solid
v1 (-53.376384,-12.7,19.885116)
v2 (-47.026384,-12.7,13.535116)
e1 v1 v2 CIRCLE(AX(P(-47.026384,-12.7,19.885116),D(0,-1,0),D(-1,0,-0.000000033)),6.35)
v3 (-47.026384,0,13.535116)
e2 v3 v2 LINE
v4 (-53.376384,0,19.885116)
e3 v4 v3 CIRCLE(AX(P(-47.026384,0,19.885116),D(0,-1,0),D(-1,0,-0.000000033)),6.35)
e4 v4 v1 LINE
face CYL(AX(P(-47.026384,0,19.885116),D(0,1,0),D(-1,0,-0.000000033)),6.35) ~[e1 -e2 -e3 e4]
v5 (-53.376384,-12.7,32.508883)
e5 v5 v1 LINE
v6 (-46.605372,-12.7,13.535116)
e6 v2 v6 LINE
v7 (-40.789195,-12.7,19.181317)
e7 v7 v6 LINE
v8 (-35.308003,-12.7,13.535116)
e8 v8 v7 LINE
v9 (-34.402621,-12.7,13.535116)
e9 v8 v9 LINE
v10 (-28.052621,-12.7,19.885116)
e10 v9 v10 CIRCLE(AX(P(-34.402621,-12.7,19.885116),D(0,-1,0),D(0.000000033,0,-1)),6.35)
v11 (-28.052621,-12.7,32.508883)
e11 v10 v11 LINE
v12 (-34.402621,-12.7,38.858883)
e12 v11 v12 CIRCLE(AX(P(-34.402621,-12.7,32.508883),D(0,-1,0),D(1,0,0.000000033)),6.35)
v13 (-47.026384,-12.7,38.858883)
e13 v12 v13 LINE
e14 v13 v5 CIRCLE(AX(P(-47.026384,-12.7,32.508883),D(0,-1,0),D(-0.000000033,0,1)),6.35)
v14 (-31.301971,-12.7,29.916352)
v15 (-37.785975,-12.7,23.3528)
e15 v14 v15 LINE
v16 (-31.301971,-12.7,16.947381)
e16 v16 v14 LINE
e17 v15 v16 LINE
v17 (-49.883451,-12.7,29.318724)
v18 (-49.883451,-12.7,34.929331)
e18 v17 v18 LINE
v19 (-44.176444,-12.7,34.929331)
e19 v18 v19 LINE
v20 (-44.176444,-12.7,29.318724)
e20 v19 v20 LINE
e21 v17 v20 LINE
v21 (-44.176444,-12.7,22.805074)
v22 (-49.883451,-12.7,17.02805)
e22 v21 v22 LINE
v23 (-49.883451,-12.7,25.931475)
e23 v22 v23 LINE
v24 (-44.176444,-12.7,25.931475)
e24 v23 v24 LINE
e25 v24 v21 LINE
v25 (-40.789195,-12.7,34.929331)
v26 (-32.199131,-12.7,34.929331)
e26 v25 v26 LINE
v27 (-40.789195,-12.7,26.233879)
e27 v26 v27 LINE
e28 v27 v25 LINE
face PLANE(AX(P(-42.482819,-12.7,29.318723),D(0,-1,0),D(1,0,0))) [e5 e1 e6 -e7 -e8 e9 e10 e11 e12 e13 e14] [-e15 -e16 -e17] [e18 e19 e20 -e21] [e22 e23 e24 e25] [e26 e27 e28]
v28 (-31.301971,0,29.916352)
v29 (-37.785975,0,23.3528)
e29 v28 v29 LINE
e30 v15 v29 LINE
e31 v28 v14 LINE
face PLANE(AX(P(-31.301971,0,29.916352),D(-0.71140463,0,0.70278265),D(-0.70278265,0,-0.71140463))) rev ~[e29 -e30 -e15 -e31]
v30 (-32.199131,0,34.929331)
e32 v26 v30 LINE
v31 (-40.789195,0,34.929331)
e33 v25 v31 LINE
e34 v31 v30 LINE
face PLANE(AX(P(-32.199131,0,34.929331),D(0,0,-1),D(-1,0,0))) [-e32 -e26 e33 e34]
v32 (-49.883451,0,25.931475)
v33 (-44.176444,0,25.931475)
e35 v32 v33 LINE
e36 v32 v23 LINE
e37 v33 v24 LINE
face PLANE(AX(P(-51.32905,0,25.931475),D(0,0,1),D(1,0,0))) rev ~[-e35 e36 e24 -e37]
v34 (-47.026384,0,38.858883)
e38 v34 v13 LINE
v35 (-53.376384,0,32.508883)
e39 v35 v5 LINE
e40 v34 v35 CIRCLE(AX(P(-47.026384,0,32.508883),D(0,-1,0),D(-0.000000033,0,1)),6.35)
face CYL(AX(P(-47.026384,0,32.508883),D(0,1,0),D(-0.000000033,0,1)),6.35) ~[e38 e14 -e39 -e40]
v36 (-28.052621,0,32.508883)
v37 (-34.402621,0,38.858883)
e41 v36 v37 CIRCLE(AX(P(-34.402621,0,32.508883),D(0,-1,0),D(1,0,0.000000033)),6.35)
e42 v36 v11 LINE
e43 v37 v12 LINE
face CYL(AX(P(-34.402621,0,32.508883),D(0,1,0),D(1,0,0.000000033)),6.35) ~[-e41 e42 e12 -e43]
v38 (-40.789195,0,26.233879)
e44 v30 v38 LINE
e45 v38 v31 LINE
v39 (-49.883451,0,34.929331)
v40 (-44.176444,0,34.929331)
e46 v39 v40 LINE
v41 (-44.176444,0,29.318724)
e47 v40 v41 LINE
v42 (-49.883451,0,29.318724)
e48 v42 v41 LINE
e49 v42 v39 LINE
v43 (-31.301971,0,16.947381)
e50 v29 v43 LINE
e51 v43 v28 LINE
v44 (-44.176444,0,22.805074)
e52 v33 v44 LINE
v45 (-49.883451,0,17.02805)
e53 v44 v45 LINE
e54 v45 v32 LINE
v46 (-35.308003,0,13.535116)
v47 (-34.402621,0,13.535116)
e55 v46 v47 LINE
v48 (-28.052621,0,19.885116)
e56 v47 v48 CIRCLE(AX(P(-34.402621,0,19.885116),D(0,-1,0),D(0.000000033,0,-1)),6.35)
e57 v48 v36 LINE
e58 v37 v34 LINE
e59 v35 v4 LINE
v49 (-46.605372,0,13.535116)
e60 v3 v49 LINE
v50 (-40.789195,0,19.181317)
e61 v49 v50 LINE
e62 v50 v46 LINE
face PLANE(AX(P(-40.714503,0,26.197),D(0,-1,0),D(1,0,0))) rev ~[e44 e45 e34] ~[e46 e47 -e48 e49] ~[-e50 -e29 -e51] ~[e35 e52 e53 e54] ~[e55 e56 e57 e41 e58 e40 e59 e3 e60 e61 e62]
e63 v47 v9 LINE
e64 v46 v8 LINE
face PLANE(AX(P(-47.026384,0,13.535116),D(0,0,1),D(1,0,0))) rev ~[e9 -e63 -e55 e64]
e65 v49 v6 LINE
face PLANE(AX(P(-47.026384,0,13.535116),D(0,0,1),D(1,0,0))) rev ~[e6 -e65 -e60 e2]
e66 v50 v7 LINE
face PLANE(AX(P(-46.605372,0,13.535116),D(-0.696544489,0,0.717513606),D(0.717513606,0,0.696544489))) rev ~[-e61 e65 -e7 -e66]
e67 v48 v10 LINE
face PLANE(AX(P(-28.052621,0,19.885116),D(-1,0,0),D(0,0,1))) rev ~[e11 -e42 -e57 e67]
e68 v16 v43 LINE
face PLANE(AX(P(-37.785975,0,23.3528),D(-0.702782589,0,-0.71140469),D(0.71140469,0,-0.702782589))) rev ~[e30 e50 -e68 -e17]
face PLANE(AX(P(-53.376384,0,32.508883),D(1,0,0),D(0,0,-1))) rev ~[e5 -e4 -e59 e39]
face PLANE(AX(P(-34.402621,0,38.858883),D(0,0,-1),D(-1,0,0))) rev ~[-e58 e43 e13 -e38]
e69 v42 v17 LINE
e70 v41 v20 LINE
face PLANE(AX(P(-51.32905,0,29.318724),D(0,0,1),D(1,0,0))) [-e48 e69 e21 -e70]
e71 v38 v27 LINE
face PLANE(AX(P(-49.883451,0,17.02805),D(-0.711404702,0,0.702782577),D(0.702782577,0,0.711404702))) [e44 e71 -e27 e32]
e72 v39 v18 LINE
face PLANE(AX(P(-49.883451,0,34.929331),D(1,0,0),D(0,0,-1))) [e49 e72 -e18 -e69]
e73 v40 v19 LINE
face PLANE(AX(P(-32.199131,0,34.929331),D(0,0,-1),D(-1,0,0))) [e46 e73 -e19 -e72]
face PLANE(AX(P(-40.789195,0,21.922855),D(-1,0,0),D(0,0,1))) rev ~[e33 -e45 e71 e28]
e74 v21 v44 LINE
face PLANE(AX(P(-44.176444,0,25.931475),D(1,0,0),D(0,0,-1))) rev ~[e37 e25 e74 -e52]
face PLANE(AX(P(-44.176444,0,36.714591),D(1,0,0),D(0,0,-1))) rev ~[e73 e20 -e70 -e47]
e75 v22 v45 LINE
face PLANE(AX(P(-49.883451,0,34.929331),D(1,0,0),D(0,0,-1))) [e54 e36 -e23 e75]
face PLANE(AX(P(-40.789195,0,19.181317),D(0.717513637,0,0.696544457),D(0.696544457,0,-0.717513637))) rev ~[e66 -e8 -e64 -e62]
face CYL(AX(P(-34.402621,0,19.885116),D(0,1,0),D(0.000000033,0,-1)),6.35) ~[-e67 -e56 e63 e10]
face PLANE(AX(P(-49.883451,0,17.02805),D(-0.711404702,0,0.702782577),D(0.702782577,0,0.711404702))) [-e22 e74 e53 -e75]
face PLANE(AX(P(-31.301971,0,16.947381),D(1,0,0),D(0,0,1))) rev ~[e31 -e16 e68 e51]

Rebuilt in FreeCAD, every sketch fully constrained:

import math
import FreeCAD as App
import Part
import Sketcher

V = App.Vector
Q = App.Units.Quantity

doc = App.newDocument("Part")
body = doc.addObject("PartDesign::Body", "Body")

# Sketch on XZ plane
sketch1 = body.newObject("Sketcher::SketchObject", "Sketch")
sketch1.AttachmentSupport = (doc.getObject("XZ_Plane"), [""])
sketch1.MapMode = "FlatFace"
sketch1.addGeometry([
    Part.LineSegment(V(-34, 39, 0), V(-47, 39, 0)),  # 0
    Part.ArcOfCircle(Part.Circle(V(-47, 33, 0), V(0, 0, 1), 6), math.radians(90), math.radians(180)),  # 1
    Part.LineSegment(V(-53, 33, 0), V(-53, 20, 0)),  # 2
    Part.ArcOfCircle(Part.Circle(V(-47, 20, 0), V(0, 0, 1), 6), math.radians(-180), math.radians(-90)),  # 3
    Part.LineSegment(V(-47, 14, 0), V(-34, 14, 0)),  # 4
    Part.ArcOfCircle(Part.Circle(V(-34, 20, 0), V(0, 0, 1), 6), math.radians(-90), math.radians(0)),  # 5
    Part.LineSegment(V(-28, 20, 0), V(-28, 33, 0)),  # 6
    Part.ArcOfCircle(Part.Circle(V(-34, 33, 0), V(0, 0, 1), 6), math.radians(0), math.radians(90)),  # 7
], False)
sketch1.addConstraint([
    Sketcher.Constraint("Tangent", 0, 2, 1, 1),
    Sketcher.Constraint("Tangent", 1, 2, 2, 1),
    Sketcher.Constraint("Tangent", 2, 2, 3, 1),
    Sketcher.Constraint("Tangent", 3, 2, 4, 1),
    Sketcher.Constraint("Tangent", 4, 2, 5, 1),
    Sketcher.Constraint("Tangent", 5, 2, 6, 1),
    Sketcher.Constraint("Tangent", 6, 2, 7, 1),
    Sketcher.Constraint("Tangent", 7, 2, 0, 1),
    Sketcher.Constraint("Horizontal", 0),
    Sketcher.Constraint("Vertical", 2),
    Sketcher.Constraint("Horizontal", 4),
    Sketcher.Constraint("Vertical", 6),
    Sketcher.Constraint("Equal", 1, 3),
    Sketcher.Constraint("Equal", 3, 5),
    Sketcher.Constraint("Equal", 5, 7),
    Sketcher.Constraint("Radius", 1, Q("0.25 in")),
    Sketcher.Constraint("DistanceX", 0, 2, 0, 1, 12.623763),
    Sketcher.Constraint("DistanceY", 2, 2, 2, 1, 12.623767),
    Sketcher.Constraint("DistanceX", 5, 3, -1, 1, 34.402621),
    Sketcher.Constraint("DistanceY", -1, 1, 1, 3, 32.508883),
])
pad1 = body.newObject("PartDesign::Pad", "Pad")
pad1.Profile = sketch1
pad1.Length = Q("0.5 in")

# Sketch on XZ plane
sketch2 = body.newObject("Sketcher::SketchObject", "Sketch001")
sketch2.AttachmentSupport = (doc.getObject("XZ_Plane"), [""])
sketch2.MapMode = "FlatFace"
sketch2.addGeometry([
    Part.LineSegment(V(-32, 35, 0), V(-50, 35, 0)),  # 0
    Part.LineSegment(V(-50, 35, 0), V(-50, 17, 0)),  # 1
    Part.LineSegment(V(-50, 17, 0), V(-32, 35, 0)),  # 2
    Part.LineSegment(V(-31, 17, 0), V(-31, 30, 0)),  # 3
    Part.LineSegment(V(-31, 30, 0), V(-38, 23, 0)),  # 4
    Part.LineSegment(V(-38, 23, 0), V(-31, 17, 0)),  # 5
], False)
sketch2.addConstraint([
    Sketcher.Constraint("Coincident", 0, 2, 1, 1),
    Sketcher.Constraint("Coincident", 1, 2, 2, 1),
    Sketcher.Constraint("Coincident", 2, 2, 0, 1),
    Sketcher.Constraint("Coincident", 3, 2, 4, 1),
    Sketcher.Constraint("Coincident", 4, 2, 5, 1),
    Sketcher.Constraint("Coincident", 5, 2, 3, 1),
    Sketcher.Constraint("Horizontal", 0),
    Sketcher.Constraint("Vertical", 1),
    Sketcher.Constraint("Vertical", 3),
    Sketcher.Constraint("Parallel", 2, 4),
    Sketcher.Constraint("Perpendicular", 4, 5),
    Sketcher.Constraint("DistanceX", 0, 2, 0, 1, 17.68432),
    Sketcher.Constraint("DistanceY", 1, 2, 1, 1, 17.901281),
    Sketcher.Constraint("DistanceY", 3, 1, 3, 2, 12.968971),
    Sketcher.Constraint("DistanceY", -1, 1, 4, 2, 23.3528),
    Sketcher.Constraint("DistanceX", 0, 2, -1, 1, 49.883451),
    Sketcher.Constraint("DistanceY", -1, 1, 0, 2, 34.929331),
    Sketcher.Constraint("DistanceX", 3, 2, -1, 1, 31.301971),
])
pocket1 = body.newObject("PartDesign::Pocket", "Pocket")
pocket1.Profile = sketch2
pocket1.Length = Q("2 in")
pocket1.Midplane = True

# Sketch on XZ plane
sketch3 = body.newObject("Sketcher::SketchObject", "Sketch002")
sketch3.AttachmentSupport = (doc.getObject("XZ_Plane"), [""])
sketch3.MapMode = "FlatFace"
sketch3.addGeometry([
    Part.LineSegment(V(-44.2, 21.9, 0), V(-40.8, 21.9, 0)),  # 0
    Part.LineSegment(V(-40.8, 21.9, 0), V(-40.8, 36.7, 0)),  # 1
    Part.LineSegment(V(-40.8, 36.7, 0), V(-44.2, 36.7, 0)),  # 2
    Part.LineSegment(V(-44.2, 36.7, 0), V(-44.2, 29.3, 0)),  # 3
    Part.LineSegment(V(-44.2, 29.3, 0), V(-51.3, 29.3, 0)),  # 4
    Part.LineSegment(V(-51.3, 29.3, 0), V(-51.3, 25.9, 0)),  # 5
    Part.LineSegment(V(-51.3, 25.9, 0), V(-44.2, 25.9, 0)),  # 6
    Part.LineSegment(V(-44.2, 25.9, 0), V(-44.2, 21.9, 0)),  # 7
], False)
sketch3.addConstraint([
    Sketcher.Constraint("Coincident", 0, 2, 1, 1),
    Sketcher.Constraint("Coincident", 1, 2, 2, 1),
    Sketcher.Constraint("Coincident", 2, 2, 3, 1),
    Sketcher.Constraint("Coincident", 3, 2, 4, 1),
    Sketcher.Constraint("Coincident", 4, 2, 5, 1),
    Sketcher.Constraint("Coincident", 5, 2, 6, 1),
    Sketcher.Constraint("Coincident", 6, 2, 7, 1),
    Sketcher.Constraint("Coincident", 7, 2, 0, 1),
    Sketcher.Constraint("Horizontal", 0),
    Sketcher.Constraint("Vertical", 1),
    Sketcher.Constraint("Horizontal", 2),
    Sketcher.Constraint("Vertical", 3),
    Sketcher.Constraint("Horizontal", 4),
    Sketcher.Constraint("Vertical", 5),
    Sketcher.Constraint("Horizontal", 6),
    Sketcher.Constraint("Vertical", 7),
    Sketcher.Constraint("Vertical", 3, 2, 6, 2),
    Sketcher.Constraint("Equal", 2, 5),
    Sketcher.Constraint("DistanceX", 0, 1, 0, 2, 3.387249),
    Sketcher.Constraint("DistanceY", 7, 2, 7, 1, 4.00862),
    Sketcher.Constraint("DistanceX", 4, 2, 4, 1, 7.152606),
    Sketcher.Constraint("DistanceY", 1, 1, 1, 2, 14.791736),
    Sketcher.Constraint("DistanceY", -1, 1, 1, 2, 36.714591),
    Sketcher.Constraint("DistanceX", 4, 2, -1, 1, 51.32905),
])
pad2 = body.newObject("PartDesign::Pad", "Pad001")
pad2.Profile = sketch3
pad2.Length = Q("0.5 in")

# Sketch on XZ plane
sketch4 = body.newObject("Sketcher::SketchObject", "Sketch003")
sketch4.AttachmentSupport = (doc.getObject("XZ_Plane"), [""])
sketch4.MapMode = "FlatFace"
sketch4.addGeometry([
    Part.LineSegment(V(-46.6, 13.5, 0), V(-40.8, 19.2, 0)),  # 0
    Part.LineSegment(V(-40.8, 19.2, 0), V(-35.3, 13.5, 0)),  # 1
    Part.LineSegment(V(-35.3, 13.5, 0), V(-33.4, 11.6, 0)),  # 2
    Part.LineSegment(V(-33.4, 11.6, 0), V(-47.1, 13.1, 0)),  # 3
    Part.LineSegment(V(-47.1, 13.1, 0), V(-46.6, 13.5, 0)),  # 4
], False)
sketch4.addConstraint([
    Sketcher.Constraint("Coincident", 0, 2, 1, 1),
    Sketcher.Constraint("Coincident", 1, 2, 2, 1),
    Sketcher.Constraint("Coincident", 2, 2, 3, 1),
    Sketcher.Constraint("Coincident", 3, 2, 4, 1),
    Sketcher.Constraint("Coincident", 4, 2, 0, 1),
    Sketcher.Constraint("Perpendicular", 0, 1),
    Sketcher.Constraint("Parallel", 1, 2),
    Sketcher.Constraint("Perpendicular", 2, 4),
    Sketcher.Constraint("Horizontal", 1, 2, 4, 2),
    Sketcher.Constraint("DistanceY", 1, 2, 0, 2, 5.646201),
    Sketcher.Constraint("DistanceX", 3, 2, 0, 2, 6.2921),
    Sketcher.Constraint("Distance", 1, 7.86912),
    Sketcher.Constraint("DistanceX", 2, 2, -1, 1, 33.403759),
    Sketcher.Constraint("DistanceY", 2, 2, 1, 2, 1.961571),
    Sketcher.Constraint("DistanceY", -1, 1, 0, 2, 19.181317),
])
pocket2 = body.newObject("PartDesign::Pocket", "Pocket001")
pocket2.Profile = sketch4
pocket2.Length = Q("10 in")
pocket2.Reversed = True

doc.recompute()
